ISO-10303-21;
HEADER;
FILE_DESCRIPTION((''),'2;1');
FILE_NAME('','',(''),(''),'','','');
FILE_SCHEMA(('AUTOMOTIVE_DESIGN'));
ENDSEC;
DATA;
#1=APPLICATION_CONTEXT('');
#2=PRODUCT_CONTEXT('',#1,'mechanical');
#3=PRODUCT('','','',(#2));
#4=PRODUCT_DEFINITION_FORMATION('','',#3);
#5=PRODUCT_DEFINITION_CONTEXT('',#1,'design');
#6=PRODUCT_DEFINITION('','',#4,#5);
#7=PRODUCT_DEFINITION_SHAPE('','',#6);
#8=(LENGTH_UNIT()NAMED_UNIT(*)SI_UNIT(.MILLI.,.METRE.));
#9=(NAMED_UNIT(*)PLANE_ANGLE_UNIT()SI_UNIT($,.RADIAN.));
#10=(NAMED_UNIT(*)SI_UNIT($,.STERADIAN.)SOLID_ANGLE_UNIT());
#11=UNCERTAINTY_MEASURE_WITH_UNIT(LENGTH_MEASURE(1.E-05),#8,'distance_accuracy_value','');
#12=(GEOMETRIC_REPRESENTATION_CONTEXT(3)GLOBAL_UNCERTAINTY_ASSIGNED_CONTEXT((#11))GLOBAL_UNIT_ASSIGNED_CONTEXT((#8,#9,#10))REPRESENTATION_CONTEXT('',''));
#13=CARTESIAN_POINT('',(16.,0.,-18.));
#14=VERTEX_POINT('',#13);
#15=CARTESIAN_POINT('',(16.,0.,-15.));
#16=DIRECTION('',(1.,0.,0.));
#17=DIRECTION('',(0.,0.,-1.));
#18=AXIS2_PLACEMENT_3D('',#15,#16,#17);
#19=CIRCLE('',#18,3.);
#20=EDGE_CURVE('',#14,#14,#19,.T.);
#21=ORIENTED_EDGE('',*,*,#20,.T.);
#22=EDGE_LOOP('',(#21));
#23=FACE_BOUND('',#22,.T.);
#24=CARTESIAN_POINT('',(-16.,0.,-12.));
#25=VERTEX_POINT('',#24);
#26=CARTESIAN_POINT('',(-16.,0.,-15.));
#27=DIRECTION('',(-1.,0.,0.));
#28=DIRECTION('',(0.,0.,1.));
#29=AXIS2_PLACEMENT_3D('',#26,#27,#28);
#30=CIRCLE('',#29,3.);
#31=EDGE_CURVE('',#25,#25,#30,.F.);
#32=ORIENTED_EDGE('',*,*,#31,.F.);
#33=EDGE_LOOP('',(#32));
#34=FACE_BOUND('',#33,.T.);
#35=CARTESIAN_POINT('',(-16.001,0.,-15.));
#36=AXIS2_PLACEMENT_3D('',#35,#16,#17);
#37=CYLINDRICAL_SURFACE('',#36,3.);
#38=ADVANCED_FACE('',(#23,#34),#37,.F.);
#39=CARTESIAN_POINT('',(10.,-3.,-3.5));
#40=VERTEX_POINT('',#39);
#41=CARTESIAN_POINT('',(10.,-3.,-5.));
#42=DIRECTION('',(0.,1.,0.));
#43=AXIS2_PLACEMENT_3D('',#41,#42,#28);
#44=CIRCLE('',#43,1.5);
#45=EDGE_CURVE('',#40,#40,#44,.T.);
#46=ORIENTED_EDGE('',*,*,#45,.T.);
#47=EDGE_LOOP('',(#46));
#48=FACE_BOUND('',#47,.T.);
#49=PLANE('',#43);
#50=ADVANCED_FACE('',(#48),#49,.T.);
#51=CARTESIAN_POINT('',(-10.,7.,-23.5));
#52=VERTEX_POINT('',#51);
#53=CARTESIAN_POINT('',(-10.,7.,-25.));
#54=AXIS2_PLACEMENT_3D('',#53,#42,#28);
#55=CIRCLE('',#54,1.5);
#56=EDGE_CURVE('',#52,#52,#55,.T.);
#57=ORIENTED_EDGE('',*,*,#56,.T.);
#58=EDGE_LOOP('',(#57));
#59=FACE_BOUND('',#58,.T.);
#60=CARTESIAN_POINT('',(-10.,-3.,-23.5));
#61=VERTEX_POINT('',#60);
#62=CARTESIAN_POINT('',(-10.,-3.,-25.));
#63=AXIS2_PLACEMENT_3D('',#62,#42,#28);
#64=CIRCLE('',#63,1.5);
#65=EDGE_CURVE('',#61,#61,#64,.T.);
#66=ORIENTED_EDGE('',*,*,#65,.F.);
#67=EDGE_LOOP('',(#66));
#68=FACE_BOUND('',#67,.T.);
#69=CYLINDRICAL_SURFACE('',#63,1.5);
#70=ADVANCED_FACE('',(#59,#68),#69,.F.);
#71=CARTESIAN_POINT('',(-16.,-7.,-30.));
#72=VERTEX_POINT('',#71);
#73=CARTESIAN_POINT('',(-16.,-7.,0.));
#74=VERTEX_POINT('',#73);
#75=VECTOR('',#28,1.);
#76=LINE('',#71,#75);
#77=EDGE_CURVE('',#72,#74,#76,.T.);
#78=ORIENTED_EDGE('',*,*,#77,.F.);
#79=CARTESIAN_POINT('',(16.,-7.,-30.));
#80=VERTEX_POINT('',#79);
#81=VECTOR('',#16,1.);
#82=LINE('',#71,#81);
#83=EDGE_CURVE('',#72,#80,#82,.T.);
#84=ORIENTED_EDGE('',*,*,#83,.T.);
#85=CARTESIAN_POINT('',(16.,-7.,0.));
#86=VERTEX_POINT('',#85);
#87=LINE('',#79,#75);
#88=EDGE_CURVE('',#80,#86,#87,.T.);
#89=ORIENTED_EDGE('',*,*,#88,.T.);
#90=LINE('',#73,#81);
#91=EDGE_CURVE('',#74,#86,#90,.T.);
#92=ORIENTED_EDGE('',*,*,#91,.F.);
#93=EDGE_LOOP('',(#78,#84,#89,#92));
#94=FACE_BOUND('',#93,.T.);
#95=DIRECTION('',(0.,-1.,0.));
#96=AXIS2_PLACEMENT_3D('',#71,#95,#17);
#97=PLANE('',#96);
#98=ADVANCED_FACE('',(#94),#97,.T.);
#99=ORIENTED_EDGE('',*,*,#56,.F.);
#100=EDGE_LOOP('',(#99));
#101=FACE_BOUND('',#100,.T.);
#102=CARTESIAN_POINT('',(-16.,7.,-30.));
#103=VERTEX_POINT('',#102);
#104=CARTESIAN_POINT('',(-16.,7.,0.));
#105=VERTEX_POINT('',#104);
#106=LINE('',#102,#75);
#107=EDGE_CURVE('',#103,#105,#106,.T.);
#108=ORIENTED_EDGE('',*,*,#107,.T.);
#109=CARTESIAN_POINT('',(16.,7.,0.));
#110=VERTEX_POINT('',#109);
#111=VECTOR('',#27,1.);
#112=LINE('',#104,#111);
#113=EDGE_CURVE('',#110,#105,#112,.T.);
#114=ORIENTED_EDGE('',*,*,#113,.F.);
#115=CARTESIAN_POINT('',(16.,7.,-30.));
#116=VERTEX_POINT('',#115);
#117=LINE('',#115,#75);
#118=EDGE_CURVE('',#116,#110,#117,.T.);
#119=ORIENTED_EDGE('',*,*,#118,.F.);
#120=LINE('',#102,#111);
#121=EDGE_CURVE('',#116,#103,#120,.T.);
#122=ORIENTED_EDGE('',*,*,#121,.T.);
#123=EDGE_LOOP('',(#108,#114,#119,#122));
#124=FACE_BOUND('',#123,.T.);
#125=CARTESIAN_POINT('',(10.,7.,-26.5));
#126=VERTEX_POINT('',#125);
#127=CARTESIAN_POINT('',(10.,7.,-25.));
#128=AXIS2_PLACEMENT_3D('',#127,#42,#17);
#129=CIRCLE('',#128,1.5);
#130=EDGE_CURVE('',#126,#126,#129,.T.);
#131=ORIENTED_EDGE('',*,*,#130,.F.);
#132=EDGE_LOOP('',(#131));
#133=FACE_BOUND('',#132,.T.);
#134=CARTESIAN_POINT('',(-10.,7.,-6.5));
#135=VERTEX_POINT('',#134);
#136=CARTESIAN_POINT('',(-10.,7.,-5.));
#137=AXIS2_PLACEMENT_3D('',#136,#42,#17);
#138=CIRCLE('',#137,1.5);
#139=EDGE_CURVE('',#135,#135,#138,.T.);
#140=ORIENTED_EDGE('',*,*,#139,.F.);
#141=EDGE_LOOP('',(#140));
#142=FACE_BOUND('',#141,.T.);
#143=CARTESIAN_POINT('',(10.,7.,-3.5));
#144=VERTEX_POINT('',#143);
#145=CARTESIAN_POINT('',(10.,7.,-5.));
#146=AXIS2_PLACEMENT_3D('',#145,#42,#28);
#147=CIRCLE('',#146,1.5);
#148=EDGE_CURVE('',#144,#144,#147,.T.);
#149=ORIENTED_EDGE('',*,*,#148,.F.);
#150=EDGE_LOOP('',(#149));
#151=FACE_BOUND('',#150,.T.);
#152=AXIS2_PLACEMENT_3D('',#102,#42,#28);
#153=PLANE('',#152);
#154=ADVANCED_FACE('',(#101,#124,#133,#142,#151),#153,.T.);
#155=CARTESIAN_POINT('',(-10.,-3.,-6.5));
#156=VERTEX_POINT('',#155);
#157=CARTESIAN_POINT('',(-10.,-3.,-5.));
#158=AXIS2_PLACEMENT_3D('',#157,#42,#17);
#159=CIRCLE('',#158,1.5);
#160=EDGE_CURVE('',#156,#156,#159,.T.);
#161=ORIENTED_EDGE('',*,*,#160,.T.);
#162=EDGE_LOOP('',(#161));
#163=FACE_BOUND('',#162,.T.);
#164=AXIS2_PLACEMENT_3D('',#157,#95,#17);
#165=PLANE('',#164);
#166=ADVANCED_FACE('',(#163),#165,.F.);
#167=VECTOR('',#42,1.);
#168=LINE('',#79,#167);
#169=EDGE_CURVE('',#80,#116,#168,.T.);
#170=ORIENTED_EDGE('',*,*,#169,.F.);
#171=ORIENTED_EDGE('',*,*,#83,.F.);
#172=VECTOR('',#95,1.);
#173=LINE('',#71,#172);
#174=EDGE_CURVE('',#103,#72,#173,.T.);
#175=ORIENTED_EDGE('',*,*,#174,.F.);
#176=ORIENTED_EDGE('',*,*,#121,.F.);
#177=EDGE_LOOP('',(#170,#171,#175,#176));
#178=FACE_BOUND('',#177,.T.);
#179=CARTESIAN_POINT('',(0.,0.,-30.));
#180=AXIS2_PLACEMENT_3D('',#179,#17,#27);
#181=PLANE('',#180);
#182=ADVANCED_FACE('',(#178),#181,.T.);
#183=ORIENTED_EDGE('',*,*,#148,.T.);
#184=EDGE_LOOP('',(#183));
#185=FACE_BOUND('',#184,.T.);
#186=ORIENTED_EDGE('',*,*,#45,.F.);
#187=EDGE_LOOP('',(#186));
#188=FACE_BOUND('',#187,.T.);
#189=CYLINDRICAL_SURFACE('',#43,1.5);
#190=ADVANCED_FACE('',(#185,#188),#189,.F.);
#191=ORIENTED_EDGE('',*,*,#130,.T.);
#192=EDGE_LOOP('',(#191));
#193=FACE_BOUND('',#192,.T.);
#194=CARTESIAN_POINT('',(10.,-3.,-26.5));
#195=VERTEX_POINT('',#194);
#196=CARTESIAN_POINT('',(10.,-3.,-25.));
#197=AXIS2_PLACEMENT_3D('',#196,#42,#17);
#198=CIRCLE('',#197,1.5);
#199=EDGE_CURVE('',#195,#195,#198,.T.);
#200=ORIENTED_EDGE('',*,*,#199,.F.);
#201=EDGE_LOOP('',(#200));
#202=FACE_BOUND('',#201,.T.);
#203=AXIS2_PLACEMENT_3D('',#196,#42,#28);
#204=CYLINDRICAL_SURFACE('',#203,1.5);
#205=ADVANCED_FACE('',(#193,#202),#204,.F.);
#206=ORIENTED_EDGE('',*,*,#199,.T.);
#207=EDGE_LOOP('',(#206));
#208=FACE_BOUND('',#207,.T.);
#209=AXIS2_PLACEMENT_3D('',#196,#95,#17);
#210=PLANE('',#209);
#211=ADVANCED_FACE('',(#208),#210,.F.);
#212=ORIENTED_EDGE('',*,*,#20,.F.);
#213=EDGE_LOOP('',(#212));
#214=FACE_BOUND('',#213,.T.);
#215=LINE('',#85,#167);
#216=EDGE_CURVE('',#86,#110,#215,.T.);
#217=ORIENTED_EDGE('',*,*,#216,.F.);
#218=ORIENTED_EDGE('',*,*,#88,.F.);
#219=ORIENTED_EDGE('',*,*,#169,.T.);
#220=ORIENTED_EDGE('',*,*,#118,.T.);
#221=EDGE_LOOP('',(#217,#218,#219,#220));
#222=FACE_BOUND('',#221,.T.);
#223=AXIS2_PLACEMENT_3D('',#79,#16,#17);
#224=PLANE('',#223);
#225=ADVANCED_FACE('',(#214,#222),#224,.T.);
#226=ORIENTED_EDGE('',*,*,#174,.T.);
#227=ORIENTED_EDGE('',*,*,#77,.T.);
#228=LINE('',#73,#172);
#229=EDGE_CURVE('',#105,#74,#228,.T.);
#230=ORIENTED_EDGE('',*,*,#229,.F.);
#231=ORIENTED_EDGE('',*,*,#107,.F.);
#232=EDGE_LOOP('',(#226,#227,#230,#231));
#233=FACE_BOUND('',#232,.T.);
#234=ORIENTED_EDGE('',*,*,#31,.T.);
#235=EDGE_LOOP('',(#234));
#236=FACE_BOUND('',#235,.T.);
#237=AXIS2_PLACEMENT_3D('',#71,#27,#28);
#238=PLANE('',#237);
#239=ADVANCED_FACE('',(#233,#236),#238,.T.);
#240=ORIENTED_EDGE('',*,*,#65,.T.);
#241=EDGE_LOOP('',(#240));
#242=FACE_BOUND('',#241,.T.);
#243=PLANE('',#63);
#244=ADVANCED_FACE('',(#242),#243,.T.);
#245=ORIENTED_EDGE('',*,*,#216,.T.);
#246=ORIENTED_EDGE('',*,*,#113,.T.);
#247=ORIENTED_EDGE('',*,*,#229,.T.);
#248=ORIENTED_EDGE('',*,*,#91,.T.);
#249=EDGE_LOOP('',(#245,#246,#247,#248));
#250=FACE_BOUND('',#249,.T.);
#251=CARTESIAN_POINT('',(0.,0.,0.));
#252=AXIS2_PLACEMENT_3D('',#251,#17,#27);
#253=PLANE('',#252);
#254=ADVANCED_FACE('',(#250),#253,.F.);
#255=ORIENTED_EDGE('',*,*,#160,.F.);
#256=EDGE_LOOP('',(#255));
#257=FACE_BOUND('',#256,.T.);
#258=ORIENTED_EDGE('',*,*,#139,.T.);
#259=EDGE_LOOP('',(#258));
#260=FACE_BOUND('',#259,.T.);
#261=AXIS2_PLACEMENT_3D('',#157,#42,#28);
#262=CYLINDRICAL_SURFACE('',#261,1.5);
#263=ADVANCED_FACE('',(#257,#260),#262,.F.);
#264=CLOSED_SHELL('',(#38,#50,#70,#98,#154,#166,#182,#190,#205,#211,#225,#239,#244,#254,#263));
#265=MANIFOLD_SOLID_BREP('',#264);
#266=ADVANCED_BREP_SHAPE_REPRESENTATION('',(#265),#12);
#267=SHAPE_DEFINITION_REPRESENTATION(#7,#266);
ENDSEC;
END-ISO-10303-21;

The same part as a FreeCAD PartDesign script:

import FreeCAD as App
import Part
import Sketcher
from FreeCAD import Vector


def add_polygon(sketch, points):
    """Adds a closed chain of lines whose ends are joined by coincident constraints."""
    first, n = sketch.GeometryCount, len(points)
    for a, b in zip(points, points[1:] + points[:1]):
        sketch.addGeometry(Part.LineSegment(App.Vector(*a, 0), App.Vector(*b, 0)), False)
    for i in range(n):
        sketch.addConstraint(Sketcher.Constraint("Coincident", first + i, 2, first + (i + 1) % n, 1))

doc = App.newDocument("Part")
params = doc.addObject("Spreadsheet::Sheet", "Params")
for row, (alias, value) in enumerate([
    ("sketch1_width", "32 mm"),
    ("sketch1_height", "14 mm"),
    ("pad1_length", "30 mm"),
    ("sketch2_diameter", "3 mm"),
    ("pocket1_length", "10 mm"),
    ("sketch3_diameter", "6 mm"),
], start=1):
    params.set(f"A{row}", alias)
    params.set(f"B{row}", "=" + value)
    params.setAlias(f"B{row}", alias)

body = doc.addObject("PartDesign::Body", "Body")

# Sketch on XY plane
sketch1 = body.newObject("Sketcher::SketchObject", "Sketch")
sketch1.AttachmentSupport = (doc.getObject("XY_Plane"), [""])
sketch1.MapMode = "FlatFace"
add_polygon(sketch1, [(-16, 7), (-16, -7), (16, -7), (16, 7)])  # lines 0-3
sketch1.addConstraint(Sketcher.Constraint("Vertical", 0))
sketch1.addConstraint(Sketcher.Constraint("Horizontal", 1))
sketch1.addConstraint(Sketcher.Constraint("Vertical", 2))
sketch1.addConstraint(Sketcher.Constraint("Horizontal", 3))
sketch1.addConstraint(Sketcher.Constraint("Symmetric", 0, 2, 2, 2, -1, 1))
sketch1.addConstraint(Sketcher.Constraint("DistanceX", 1, 1, 1, 2, 32.0))
sketch1.addConstraint(Sketcher.Constraint("DistanceY", 0, 2, 0, 1, 14.0))
sketch1.setExpression("Constraints[9]", "Params.sketch1_width")
sketch1.setExpression("Constraints[10]", "Params.sketch1_height")
pad1 = body.newObject("PartDesign::Pad", "Pad")
pad1.Profile = sketch1
pad1.setExpression("Length", "Params.pad1_length")
pad1.Reversed = True

# Sketch on XZ plane
sketch2 = body.newObject("Sketcher::SketchObject", "Sketch001")
sketch2.AttachmentSupport = (doc.getObject("XZ_Plane"), [""])
sketch2.MapMode = "FlatFace"
sketch2.AttachmentOffset = App.Placement(Vector(0, 0, -7), App.Rotation())
sketch2.addGeometry(Part.Circle(Vector(-10, -25, 0), Vector(0, 0, 1), 1.5), False)
sketch2.addGeometry(Part.Circle(Vector(10, -25, 0), Vector(0, 0, 1), 1.5), False)
sketch2.addGeometry(Part.Circle(Vector(10, -5, 0), Vector(0, 0, 1), 1.5), False)
sketch2.addGeometry(Part.Circle(Vector(-10, -5, 0), Vector(0, 0, 1), 1.5), False)
sketch2.addConstraint(Sketcher.Constraint("Equal", 0, 1))
sketch2.addConstraint(Sketcher.Constraint("Equal", 1, 2))
sketch2.addConstraint(Sketcher.Constraint("Equal", 2, 3))
sketch2.addConstraint(Sketcher.Constraint("Symmetric", 0, 3, 1, 3, -2))
sketch2.addConstraint(Sketcher.Constraint("Symmetric", 2, 3, 3, 3, -2))
sketch2.addConstraint(Sketcher.Constraint("Vertical", 1, 3, 2, 3))
sketch2.addConstraint(Sketcher.Constraint("Diameter", 0, 3.0))
sketch2.addConstraint(Sketcher.Constraint("DistanceX", 0, 3, -1, 1, 10.0))
sketch2.addConstraint(Sketcher.Constraint("DistanceY", 0, 3, -1, 1, 25.0))
sketch2.addConstraint(Sketcher.Constraint("DistanceY", 2, 3, -1, 1, 5.0))
sketch2.setExpression("Constraints[6]", "Params.sketch2_diameter")
pocket1 = body.newObject("PartDesign::Pocket", "Pocket")
pocket1.Profile = sketch2
pocket1.setExpression("Length", "Params.pocket1_length")
pocket1.Reversed = True

# Sketch on YZ plane
sketch3 = body.newObject("Sketcher::SketchObject", "Sketch002")
sketch3.AttachmentSupport = (doc.getObject("YZ_Plane"), [""])
sketch3.MapMode = "FlatFace"
sketch3.AttachmentOffset = App.Placement(Vector(0, 0, 16), App.Rotation())
sketch3.addGeometry(Part.Circle(Vector(0, -15, 0), Vector(0, 0, 1), 3), False)
sketch3.addConstraint(Sketcher.Constraint("PointOnObject", 0, 3, -2))
sketch3.addConstraint(Sketcher.Constraint("Diameter", 0, 6.0))
sketch3.addConstraint(Sketcher.Constraint("DistanceY", 0, 3, -1, 1, 15.0))
sketch3.setExpression("Constraints[1]", "Params.sketch3_diameter")
pocket2 = body.newObject("PartDesign::Pocket", "Pocket001")
pocket2.Profile = sketch3
pocket2.Type = "UpToFirst"

doc.recompute()
